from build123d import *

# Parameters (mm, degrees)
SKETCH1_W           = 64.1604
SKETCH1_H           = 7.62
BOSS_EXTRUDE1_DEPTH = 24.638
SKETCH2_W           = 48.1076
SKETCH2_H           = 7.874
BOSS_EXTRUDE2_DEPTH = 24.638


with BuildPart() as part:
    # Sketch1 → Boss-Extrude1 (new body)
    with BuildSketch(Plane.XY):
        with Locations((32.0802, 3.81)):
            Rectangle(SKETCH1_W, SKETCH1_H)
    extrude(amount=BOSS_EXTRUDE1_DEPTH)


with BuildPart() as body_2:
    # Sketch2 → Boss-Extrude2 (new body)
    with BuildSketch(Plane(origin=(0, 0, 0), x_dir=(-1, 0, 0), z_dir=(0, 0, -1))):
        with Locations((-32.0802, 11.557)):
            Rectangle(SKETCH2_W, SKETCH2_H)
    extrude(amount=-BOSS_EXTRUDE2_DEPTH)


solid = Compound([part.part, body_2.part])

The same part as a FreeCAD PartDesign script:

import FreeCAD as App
import Part
import Sketcher
from FreeCAD import Vector
Q = App.Units.Quantity

doc = App.newDocument("Part")
body = doc.addObject("PartDesign::Body", "Body")

# Sketch on XY plane
sketch1 = body.newObject("Sketcher::SketchObject", "Sketch")
sketch1.AttachmentSupport = (doc.getObject("XY_Plane"), [""])
sketch1.MapMode = "FlatFace"
sketch1.addGeometry(Part.LineSegment(Vector(0, 8, 0), Vector(0, 0, 0)), False)
sketch1.addGeometry(Part.LineSegment(Vector(0, 0, 0), Vector(64, 0, 0)), False)
sketch1.addGeometry(Part.LineSegment(Vector(64, 0, 0), Vector(64, 8, 0)), False)
sketch1.addGeometry(Part.LineSegment(Vector(64, 8, 0), Vector(0, 8, 0)), False)
sketch1.addConstraint(Sketcher.Constraint("Coincident", 0, 2, 1, 1))
sketch1.addConstraint(Sketcher.Constraint("Coincident", 1, 2, 2, 1))
sketch1.addConstraint(Sketcher.Constraint("Coincident", 2, 2, 3, 1))
sketch1.addConstraint(Sketcher.Constraint("Coincident", 3, 2, 0, 1))
sketch1.addConstraint(Sketcher.Constraint("Vertical", 0))
sketch1.addConstraint(Sketcher.Constraint("Horizontal", 1))
sketch1.addConstraint(Sketcher.Constraint("Vertical", 2))
sketch1.addConstraint(Sketcher.Constraint("Horizontal", 3))
sketch1.addConstraint(Sketcher.Constraint("Coincident", 0, 2, -1, 1))
sketch1.addConstraint(Sketcher.Constraint("DistanceY", 0, 2, 0, 1, Q("0.3 in")))
sketch1.addConstraint(Sketcher.Constraint("DistanceX", 1, 1, 1, 2, Q("2.526 in")))
pad1 = body.newObject("PartDesign::Pad", "Pad")
pad1.Profile = sketch1
pad1.Length = Q("0.97 in")
body2 = doc.addObject("PartDesign::Body", "Body001")

# Sketch on XY plane
sketch2 = body2.newObject("Sketcher::SketchObject", "Sketch001")
sketch2.AttachmentSupport = (doc.getObject("XY_Plane001"), [""])
sketch2.MapMode = "FlatFace"
sketch2.addGeometry(Part.LineSegment(Vector(56, 15, 0), Vector(56, 8, 0)), False)
sketch2.addGeometry(Part.LineSegment(Vector(56, 8, 0), Vector(8, 8, 0)), False)
sketch2.addGeometry(Part.LineSegment(Vector(8, 8, 0), Vector(8, 15, 0)), False)
sketch2.addGeometry(Part.LineSegment(Vector(8, 15, 0), Vector(56, 15, 0)), False)
sketch2.addConstraint(Sketcher.Constraint("Coincident", 0, 2, 1, 1))
sketch2.addConstraint(Sketcher.Constraint("Coincident", 1, 2, 2, 1))
sketch2.addConstraint(Sketcher.Constraint("Coincident", 2, 2, 3, 1))
sketch2.addConstraint(Sketcher.Constraint("Coincident", 3, 2, 0, 1))
sketch2.addConstraint(Sketcher.Constraint("Vertical", 0))
sketch2.addConstraint(Sketcher.Constraint("Horizontal", 1))
sketch2.addConstraint(Sketcher.Constraint("Vertical", 2))
sketch2.addConstraint(Sketcher.Constraint("Horizontal", 3))
sketch2.addConstraint(Sketcher.Constraint("DistanceY", 0, 2, 0, 1, Q("0.31 in")))
sketch2.addConstraint(Sketcher.Constraint("DistanceY", -1, 1, 0, 2, Q("0.3 in")))
sketch2.addConstraint(Sketcher.Constraint("DistanceX", 1, 2, 1, 1, Q("1.894 in")))
sketch2.addConstraint(Sketcher.Constraint("DistanceX", -1, 1, 0, 2, Q("2.21 in")))
pad2 = body2.newObject("PartDesign::Pad", "Pad001")
pad2.Profile = sketch2
pad2.Length = Q("0.97 in")

doc.recompute()
